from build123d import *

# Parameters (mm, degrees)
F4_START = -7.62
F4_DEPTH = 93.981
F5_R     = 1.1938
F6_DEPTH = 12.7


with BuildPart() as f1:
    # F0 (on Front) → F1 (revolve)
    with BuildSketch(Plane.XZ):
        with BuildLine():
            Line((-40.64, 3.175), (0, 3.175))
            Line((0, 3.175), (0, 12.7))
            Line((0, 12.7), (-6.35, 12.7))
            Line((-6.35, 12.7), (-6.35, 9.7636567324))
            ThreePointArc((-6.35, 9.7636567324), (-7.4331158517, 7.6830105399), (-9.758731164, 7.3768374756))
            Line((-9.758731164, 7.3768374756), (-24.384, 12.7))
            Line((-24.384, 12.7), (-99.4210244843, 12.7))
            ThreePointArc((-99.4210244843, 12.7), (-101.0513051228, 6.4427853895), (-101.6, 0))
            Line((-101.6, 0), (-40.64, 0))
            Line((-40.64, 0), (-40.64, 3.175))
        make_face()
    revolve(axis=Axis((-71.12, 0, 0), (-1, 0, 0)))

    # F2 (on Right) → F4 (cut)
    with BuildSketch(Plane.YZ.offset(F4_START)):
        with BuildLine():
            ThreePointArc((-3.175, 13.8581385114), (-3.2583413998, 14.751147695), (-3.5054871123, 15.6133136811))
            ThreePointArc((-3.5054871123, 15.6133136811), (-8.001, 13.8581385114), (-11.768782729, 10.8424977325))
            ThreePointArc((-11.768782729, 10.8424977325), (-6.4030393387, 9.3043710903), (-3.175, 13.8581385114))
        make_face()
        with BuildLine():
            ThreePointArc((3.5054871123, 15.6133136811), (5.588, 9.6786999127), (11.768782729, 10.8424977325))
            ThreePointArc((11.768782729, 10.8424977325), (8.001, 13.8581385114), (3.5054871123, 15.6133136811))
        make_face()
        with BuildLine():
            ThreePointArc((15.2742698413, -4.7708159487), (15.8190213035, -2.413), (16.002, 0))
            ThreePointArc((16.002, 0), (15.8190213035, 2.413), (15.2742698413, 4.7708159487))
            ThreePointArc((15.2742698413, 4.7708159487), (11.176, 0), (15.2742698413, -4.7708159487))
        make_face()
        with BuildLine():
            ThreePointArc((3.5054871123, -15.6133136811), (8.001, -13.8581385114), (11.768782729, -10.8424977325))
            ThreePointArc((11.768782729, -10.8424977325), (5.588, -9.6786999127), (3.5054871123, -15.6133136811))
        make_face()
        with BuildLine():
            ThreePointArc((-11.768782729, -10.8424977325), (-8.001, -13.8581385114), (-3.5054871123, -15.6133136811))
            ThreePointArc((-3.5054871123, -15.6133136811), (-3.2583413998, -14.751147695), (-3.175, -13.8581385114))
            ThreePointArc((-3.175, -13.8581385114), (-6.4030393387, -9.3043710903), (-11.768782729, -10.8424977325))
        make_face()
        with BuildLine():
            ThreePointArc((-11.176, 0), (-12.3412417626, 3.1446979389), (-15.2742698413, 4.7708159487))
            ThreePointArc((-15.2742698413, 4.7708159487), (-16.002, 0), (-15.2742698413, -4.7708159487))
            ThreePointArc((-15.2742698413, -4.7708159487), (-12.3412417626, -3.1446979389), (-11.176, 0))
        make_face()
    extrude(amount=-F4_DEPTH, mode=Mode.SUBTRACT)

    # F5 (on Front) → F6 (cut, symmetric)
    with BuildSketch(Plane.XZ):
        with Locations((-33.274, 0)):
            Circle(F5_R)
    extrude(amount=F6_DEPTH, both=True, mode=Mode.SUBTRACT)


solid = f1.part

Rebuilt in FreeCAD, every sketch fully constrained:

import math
import FreeCAD as App
import Part
import Sketcher
from FreeCAD import Vector
Q = App.Units.Quantity

doc = App.newDocument("Part")
body = doc.addObject("PartDesign::Body", "Body")

# Sketch on XZ plane
sketch1 = body.newObject("Sketcher::SketchObject", "Sketch")
sketch1.AttachmentSupport = (doc.getObject("XZ_Plane"), [""])
sketch1.MapMode = "FlatFace"
sketch1.addGeometry([
    Part.LineSegment(Vector(-40.6, 3.2, 0), Vector(0, 3.2, 0)),  # 0
    Part.LineSegment(Vector(0, 3.2, 0), Vector(0, 12.7, 0)),  # 1
    Part.LineSegment(Vector(0, 12.7, 0), Vector(-6.3, 12.7, 0)),  # 2
    Part.LineSegment(Vector(-6.3, 12.7, 0), Vector(-6.3, 9.8, 0)),  # 3
    Part.ArcOfCircle(Part.Circle(Vector(-8.9, 9.8, 0), Vector(0, 0, 1), 2.5), math.radians(-110), math.radians(0)),  # 4
    Part.LineSegment(Vector(-9.8, 7.4, 0), Vector(-24.4, 12.7, 0)),  # 5
    Part.LineSegment(Vector(-24.4, 12.7, 0), Vector(-99.4, 12.7, 0)),  # 6
    Part.ArcOfCircle(Part.Circle(Vector(-63.5, 0, 0), Vector(0, 0, 1), 38.1), math.radians(160.53), math.radians(180)),  # 7
    Part.LineSegment(Vector(-101.6, 0, 0), Vector(-40.6, 0, 0)),  # 8
    Part.LineSegment(Vector(-40.6, 0, 0), Vector(-40.6, 3.2, 0)),  # 9
], False)
sketch1.addConstraint([
    Sketcher.Constraint("Coincident", 0, 2, 1, 1),
    Sketcher.Constraint("Coincident", 1, 2, 2, 1),
    Sketcher.Constraint("Coincident", 2, 2, 3, 1),
    Sketcher.Constraint("Tangent", 3, 2, 4, 2),
    Sketcher.Constraint("Tangent", 4, 1, 5, 1),
    Sketcher.Constraint("Coincident", 5, 2, 6, 1),
    Sketcher.Constraint("Coincident", 6, 2, 7, 1),
    Sketcher.Constraint("Coincident", 7, 2, 8, 1),
    Sketcher.Constraint("Coincident", 8, 2, 9, 1),
    Sketcher.Constraint("Coincident", 9, 2, 0, 1),
    Sketcher.Constraint("Horizontal", 0),
    Sketcher.Constraint("Vertical", 1),
    Sketcher.Constraint("Horizontal", 2),
    Sketcher.Constraint("Vertical", 3),
    Sketcher.Constraint("Horizontal", 6),
    Sketcher.Constraint("Horizontal", 8),
    Sketcher.Constraint("Vertical", 9),
    Sketcher.Constraint("PointOnObject", 7, 3, -1),
    Sketcher.Constraint("PointOnObject", 0, 2, -2),
    Sketcher.Constraint("PointOnObject", 7, 2, -1),
    Sketcher.Constraint("Horizontal", 2, 2, 5, 2),
    Sketcher.Constraint("Radius", 4, Q("0.1 in")),
    Sketcher.Constraint("Radius", 7, Q("1.5 in")),
    Sketcher.Constraint("DistanceX", 0, 1, 0, 2, Q("1.6 in")),
    Sketcher.Constraint("DistanceX", 8, 1, 8, 2, Q("2.4 in")),
    Sketcher.Constraint("Angle", 5, Q("160 deg")),
    Sketcher.Constraint("DistanceX", 2, 2, 2, 1, Q("0.25 in")),
    Sketcher.Constraint("DistanceY", -1, 1, 1, 2, Q("0.5 in")),
    Sketcher.Constraint("DistanceY", 1, 1, 1, 2, Q("0.375 in")),
    Sketcher.Constraint("DistanceX", 5, 2, -1, 1, Q("0.96 in")),
])
revolution = body.newObject("PartDesign::Revolution", "Revolution")
revolution.Profile = sketch1
revolution.ReferenceAxis = (sketch1, ["H_Axis"])
revolution.Angle = 360

# Sketch on YZ plane
sketch2 = body.newObject("Sketcher::SketchObject", "Sketch001")
sketch2.AttachmentSupport = (doc.getObject("YZ_Plane"), [""])
sketch2.MapMode = "FlatFace"
sketch2.AttachmentOffset = App.Placement(Vector(0, 0, -0.3 * 25.4), App.Rotation())
sketch2.addGeometry([
    Part.ArcOfCircle(Part.Circle(Vector(-8, 13.9, 0), Vector(0, 0, 1), 4.8), math.radians(0), math.radians(21)),  # 0
    Part.ArcOfCircle(Part.Circle(Vector(0, 0, 0), Vector(0, 0, 1), 16), math.radians(103), math.radians(137)),  # 1
    Part.ArcOfCircle(Part.Circle(Vector(-8, 13.9, 0), Vector(0, 0, 1), 4.8), math.radians(-141), math.radians(0)),  # 2
    Part.ArcOfCircle(Part.Circle(Vector(8, 13.9, 0), Vector(0, 0, 1), 4.8), math.radians(159), math.radians(321)),  # 3
    Part.ArcOfCircle(Part.Circle(Vector(0, 0, 0), Vector(0, 0, 1), 16), math.radians(43), math.radians(77)),  # 4
    Part.ArcOfCircle(Part.Circle(Vector(0, 0, 0), Vector(0, 0, 1), 16), math.radians(-17.35), math.radians(0)),  # 5
    Part.ArcOfCircle(Part.Circle(Vector(0, 0, 0), Vector(0, 0, 1), 16), math.radians(0), math.radians(17.35)),  # 6
    Part.ArcOfCircle(Part.Circle(Vector(16, 0, 0), Vector(0, 0, 1), 4.8), math.radians(99), math.radians(261)),  # 7
    Part.ArcOfCircle(Part.Circle(Vector(0, 0, 0), Vector(0, 0, 1), 16), math.radians(-77), math.radians(-43)),  # 8
    Part.ArcOfCircle(Part.Circle(Vector(8, -13.9, 0), Vector(0, 0, 1), 4.8), math.radians(39), math.radians(201)),  # 9
    Part.ArcOfCircle(Part.Circle(Vector(0, 0, 0), Vector(0, 0, 1), 16), math.radians(-137), math.radians(-103)),  # 10
    Part.ArcOfCircle(Part.Circle(Vector(-8, -13.9, 0), Vector(0, 0, 1), 4.8), math.radians(-21), math.radians(0)),  # 11
    Part.ArcOfCircle(Part.Circle(Vector(-8, -13.9, 0), Vector(0, 0, 1), 4.8), math.radians(0), math.radians(141)),  # 12
    Part.ArcOfCircle(Part.Circle(Vector(-16, 0, 0), Vector(0, 0, 1), 4.8), math.radians(0), math.radians(81)),  # 13
    Part.ArcOfCircle(Part.Circle(Vector(0, 0, 0), Vector(0, 0, 1), 16), math.radians(163), math.radians(197)),  # 14
    Part.ArcOfCircle(Part.Circle(Vector(-16, 0, 0), Vector(0, 0, 1), 4.8), math.radians(-81), math.radians(0)),  # 15
], False)
sketch2.addConstraint([
    Sketcher.Constraint("Coincident", 0, 2, 1, 1),
    Sketcher.Constraint("Coincident", 1, 2, 2, 1),
    Sketcher.Constraint("Tangent", 2, 2, 0, 1),
    Sketcher.Constraint("Coincident", 3, 1, 4, 2),
    Sketcher.Constraint("Coincident", 4, 1, 3, 2),
    Sketcher.Constraint("Tangent", 5, 2, 6, 1),
    Sketcher.Constraint("Coincident", 6, 2, 7, 1),
    Sketcher.Constraint("Coincident", 7, 2, 5, 1),
    Sketcher.Constraint("Coincident", 8, 1, 9, 2),
    Sketcher.Constraint("Coincident", 9, 1, 8, 2),
    Sketcher.Constraint("Coincident", 10, 2, 11, 1),
    Sketcher.Constraint("Tangent", 11, 2, 12, 1),
    Sketcher.Constraint("Coincident", 12, 2, 10, 1),
    Sketcher.Constraint("Coincident", 13, 2, 14, 1),
    Sketcher.Constraint("Coincident", 14, 2, 15, 1),
    Sketcher.Constraint("Tangent", 15, 2, 13, 1),
    Sketcher.Constraint("Coincident", 1, 3, -1, 1),
    Sketcher.Constraint("Coincident", 4, 3, -1, 1),
    Sketcher.Constraint("Coincident", 5, 3, -1, 1),
    Sketcher.Constraint("Coincident", 8, 3, -1, 1),
    Sketcher.Constraint("Coincident", 10, 3, -1, 1),
    Sketcher.Constraint("Coincident", 14, 3, -1, 1),
    Sketcher.Constraint("Coincident", 5, 2, 7, 3),
    Sketcher.Constraint("Equal", 0, 2),
    Sketcher.Constraint("Equal", 2, 3),
    Sketcher.Constraint("Equal", 1, 4),
    Sketcher.Constraint("Equal", 4, 5),
    Sketcher.Constraint("Equal", 5, 6),
    Sketcher.Constraint("Equal", 3, 7),
    Sketcher.Constraint("Equal", 6, 8),
    Sketcher.Constraint("Equal", 7, 9),
    Sketcher.Constraint("Equal", 8, 10),
    Sketcher.Constraint("Equal", 9, 11),
    Sketcher.Constraint("Equal", 11, 12),
    Sketcher.Constraint("Equal", 12, 13),
    Sketcher.Constraint("Equal", 10, 14),
    Sketcher.Constraint("Equal", 13, 15),
    Sketcher.Constraint("Symmetric", 0, 3, 9, 3, -1, 1),
    Sketcher.Constraint("Symmetric", 3, 3, 11, 3, -1, 1),
    Sketcher.Constraint("Symmetric", 7, 3, 13, 3, -1, 1),
    Sketcher.Constraint("Symmetric", 0, 3, 3, 3, -2),
    Sketcher.Constraint("PointOnObject", 7, 3, -1),
    Sketcher.Constraint("PointOnObject", 15, 2, -1),
    Sketcher.Constraint("Horizontal", 3, 3, 2, 2),
    Sketcher.Constraint("Horizontal", 12, 3, 11, 2),
    Sketcher.Constraint("Radius", 0, Q("0.19 in")),
    Sketcher.Constraint("Radius", 1, Q("0.63 in")),
    Sketcher.Constraint("DistanceX", 0, 3, 3, 3, Q("0.63 in")),
    Sketcher.Constraint("DistanceY", -1, 1, 0, 3, 13.858139),
])
pocket1 = body.newObject("PartDesign::Pocket", "Pocket")
pocket1.Profile = sketch2
pocket1.Length = 93.981

# Sketch on XZ plane
sketch3 = body.newObject("Sketcher::SketchObject", "Sketch002")
sketch3.AttachmentSupport = (doc.getObject("XZ_Plane"), [""])
sketch3.MapMode = "FlatFace"
sketch3.addGeometry(Part.Circle(Vector(-33.3, 0, 0), Vector(0, 0, 1), 1.2), False)
sketch3.addConstraint([
    Sketcher.Constraint("PointOnObject", 0, 3, -1),
    Sketcher.Constraint("Diameter", 0, Q("0.094 in")),
    Sketcher.Constraint("DistanceX", 0, 3, -1, 1, Q("1.31 in")),
])
pocket2 = body.newObject("PartDesign::Pocket", "Pocket001")
pocket2.Profile = sketch3
pocket2.Length = Q("1 in")
pocket2.Midplane = True

doc.recompute()
